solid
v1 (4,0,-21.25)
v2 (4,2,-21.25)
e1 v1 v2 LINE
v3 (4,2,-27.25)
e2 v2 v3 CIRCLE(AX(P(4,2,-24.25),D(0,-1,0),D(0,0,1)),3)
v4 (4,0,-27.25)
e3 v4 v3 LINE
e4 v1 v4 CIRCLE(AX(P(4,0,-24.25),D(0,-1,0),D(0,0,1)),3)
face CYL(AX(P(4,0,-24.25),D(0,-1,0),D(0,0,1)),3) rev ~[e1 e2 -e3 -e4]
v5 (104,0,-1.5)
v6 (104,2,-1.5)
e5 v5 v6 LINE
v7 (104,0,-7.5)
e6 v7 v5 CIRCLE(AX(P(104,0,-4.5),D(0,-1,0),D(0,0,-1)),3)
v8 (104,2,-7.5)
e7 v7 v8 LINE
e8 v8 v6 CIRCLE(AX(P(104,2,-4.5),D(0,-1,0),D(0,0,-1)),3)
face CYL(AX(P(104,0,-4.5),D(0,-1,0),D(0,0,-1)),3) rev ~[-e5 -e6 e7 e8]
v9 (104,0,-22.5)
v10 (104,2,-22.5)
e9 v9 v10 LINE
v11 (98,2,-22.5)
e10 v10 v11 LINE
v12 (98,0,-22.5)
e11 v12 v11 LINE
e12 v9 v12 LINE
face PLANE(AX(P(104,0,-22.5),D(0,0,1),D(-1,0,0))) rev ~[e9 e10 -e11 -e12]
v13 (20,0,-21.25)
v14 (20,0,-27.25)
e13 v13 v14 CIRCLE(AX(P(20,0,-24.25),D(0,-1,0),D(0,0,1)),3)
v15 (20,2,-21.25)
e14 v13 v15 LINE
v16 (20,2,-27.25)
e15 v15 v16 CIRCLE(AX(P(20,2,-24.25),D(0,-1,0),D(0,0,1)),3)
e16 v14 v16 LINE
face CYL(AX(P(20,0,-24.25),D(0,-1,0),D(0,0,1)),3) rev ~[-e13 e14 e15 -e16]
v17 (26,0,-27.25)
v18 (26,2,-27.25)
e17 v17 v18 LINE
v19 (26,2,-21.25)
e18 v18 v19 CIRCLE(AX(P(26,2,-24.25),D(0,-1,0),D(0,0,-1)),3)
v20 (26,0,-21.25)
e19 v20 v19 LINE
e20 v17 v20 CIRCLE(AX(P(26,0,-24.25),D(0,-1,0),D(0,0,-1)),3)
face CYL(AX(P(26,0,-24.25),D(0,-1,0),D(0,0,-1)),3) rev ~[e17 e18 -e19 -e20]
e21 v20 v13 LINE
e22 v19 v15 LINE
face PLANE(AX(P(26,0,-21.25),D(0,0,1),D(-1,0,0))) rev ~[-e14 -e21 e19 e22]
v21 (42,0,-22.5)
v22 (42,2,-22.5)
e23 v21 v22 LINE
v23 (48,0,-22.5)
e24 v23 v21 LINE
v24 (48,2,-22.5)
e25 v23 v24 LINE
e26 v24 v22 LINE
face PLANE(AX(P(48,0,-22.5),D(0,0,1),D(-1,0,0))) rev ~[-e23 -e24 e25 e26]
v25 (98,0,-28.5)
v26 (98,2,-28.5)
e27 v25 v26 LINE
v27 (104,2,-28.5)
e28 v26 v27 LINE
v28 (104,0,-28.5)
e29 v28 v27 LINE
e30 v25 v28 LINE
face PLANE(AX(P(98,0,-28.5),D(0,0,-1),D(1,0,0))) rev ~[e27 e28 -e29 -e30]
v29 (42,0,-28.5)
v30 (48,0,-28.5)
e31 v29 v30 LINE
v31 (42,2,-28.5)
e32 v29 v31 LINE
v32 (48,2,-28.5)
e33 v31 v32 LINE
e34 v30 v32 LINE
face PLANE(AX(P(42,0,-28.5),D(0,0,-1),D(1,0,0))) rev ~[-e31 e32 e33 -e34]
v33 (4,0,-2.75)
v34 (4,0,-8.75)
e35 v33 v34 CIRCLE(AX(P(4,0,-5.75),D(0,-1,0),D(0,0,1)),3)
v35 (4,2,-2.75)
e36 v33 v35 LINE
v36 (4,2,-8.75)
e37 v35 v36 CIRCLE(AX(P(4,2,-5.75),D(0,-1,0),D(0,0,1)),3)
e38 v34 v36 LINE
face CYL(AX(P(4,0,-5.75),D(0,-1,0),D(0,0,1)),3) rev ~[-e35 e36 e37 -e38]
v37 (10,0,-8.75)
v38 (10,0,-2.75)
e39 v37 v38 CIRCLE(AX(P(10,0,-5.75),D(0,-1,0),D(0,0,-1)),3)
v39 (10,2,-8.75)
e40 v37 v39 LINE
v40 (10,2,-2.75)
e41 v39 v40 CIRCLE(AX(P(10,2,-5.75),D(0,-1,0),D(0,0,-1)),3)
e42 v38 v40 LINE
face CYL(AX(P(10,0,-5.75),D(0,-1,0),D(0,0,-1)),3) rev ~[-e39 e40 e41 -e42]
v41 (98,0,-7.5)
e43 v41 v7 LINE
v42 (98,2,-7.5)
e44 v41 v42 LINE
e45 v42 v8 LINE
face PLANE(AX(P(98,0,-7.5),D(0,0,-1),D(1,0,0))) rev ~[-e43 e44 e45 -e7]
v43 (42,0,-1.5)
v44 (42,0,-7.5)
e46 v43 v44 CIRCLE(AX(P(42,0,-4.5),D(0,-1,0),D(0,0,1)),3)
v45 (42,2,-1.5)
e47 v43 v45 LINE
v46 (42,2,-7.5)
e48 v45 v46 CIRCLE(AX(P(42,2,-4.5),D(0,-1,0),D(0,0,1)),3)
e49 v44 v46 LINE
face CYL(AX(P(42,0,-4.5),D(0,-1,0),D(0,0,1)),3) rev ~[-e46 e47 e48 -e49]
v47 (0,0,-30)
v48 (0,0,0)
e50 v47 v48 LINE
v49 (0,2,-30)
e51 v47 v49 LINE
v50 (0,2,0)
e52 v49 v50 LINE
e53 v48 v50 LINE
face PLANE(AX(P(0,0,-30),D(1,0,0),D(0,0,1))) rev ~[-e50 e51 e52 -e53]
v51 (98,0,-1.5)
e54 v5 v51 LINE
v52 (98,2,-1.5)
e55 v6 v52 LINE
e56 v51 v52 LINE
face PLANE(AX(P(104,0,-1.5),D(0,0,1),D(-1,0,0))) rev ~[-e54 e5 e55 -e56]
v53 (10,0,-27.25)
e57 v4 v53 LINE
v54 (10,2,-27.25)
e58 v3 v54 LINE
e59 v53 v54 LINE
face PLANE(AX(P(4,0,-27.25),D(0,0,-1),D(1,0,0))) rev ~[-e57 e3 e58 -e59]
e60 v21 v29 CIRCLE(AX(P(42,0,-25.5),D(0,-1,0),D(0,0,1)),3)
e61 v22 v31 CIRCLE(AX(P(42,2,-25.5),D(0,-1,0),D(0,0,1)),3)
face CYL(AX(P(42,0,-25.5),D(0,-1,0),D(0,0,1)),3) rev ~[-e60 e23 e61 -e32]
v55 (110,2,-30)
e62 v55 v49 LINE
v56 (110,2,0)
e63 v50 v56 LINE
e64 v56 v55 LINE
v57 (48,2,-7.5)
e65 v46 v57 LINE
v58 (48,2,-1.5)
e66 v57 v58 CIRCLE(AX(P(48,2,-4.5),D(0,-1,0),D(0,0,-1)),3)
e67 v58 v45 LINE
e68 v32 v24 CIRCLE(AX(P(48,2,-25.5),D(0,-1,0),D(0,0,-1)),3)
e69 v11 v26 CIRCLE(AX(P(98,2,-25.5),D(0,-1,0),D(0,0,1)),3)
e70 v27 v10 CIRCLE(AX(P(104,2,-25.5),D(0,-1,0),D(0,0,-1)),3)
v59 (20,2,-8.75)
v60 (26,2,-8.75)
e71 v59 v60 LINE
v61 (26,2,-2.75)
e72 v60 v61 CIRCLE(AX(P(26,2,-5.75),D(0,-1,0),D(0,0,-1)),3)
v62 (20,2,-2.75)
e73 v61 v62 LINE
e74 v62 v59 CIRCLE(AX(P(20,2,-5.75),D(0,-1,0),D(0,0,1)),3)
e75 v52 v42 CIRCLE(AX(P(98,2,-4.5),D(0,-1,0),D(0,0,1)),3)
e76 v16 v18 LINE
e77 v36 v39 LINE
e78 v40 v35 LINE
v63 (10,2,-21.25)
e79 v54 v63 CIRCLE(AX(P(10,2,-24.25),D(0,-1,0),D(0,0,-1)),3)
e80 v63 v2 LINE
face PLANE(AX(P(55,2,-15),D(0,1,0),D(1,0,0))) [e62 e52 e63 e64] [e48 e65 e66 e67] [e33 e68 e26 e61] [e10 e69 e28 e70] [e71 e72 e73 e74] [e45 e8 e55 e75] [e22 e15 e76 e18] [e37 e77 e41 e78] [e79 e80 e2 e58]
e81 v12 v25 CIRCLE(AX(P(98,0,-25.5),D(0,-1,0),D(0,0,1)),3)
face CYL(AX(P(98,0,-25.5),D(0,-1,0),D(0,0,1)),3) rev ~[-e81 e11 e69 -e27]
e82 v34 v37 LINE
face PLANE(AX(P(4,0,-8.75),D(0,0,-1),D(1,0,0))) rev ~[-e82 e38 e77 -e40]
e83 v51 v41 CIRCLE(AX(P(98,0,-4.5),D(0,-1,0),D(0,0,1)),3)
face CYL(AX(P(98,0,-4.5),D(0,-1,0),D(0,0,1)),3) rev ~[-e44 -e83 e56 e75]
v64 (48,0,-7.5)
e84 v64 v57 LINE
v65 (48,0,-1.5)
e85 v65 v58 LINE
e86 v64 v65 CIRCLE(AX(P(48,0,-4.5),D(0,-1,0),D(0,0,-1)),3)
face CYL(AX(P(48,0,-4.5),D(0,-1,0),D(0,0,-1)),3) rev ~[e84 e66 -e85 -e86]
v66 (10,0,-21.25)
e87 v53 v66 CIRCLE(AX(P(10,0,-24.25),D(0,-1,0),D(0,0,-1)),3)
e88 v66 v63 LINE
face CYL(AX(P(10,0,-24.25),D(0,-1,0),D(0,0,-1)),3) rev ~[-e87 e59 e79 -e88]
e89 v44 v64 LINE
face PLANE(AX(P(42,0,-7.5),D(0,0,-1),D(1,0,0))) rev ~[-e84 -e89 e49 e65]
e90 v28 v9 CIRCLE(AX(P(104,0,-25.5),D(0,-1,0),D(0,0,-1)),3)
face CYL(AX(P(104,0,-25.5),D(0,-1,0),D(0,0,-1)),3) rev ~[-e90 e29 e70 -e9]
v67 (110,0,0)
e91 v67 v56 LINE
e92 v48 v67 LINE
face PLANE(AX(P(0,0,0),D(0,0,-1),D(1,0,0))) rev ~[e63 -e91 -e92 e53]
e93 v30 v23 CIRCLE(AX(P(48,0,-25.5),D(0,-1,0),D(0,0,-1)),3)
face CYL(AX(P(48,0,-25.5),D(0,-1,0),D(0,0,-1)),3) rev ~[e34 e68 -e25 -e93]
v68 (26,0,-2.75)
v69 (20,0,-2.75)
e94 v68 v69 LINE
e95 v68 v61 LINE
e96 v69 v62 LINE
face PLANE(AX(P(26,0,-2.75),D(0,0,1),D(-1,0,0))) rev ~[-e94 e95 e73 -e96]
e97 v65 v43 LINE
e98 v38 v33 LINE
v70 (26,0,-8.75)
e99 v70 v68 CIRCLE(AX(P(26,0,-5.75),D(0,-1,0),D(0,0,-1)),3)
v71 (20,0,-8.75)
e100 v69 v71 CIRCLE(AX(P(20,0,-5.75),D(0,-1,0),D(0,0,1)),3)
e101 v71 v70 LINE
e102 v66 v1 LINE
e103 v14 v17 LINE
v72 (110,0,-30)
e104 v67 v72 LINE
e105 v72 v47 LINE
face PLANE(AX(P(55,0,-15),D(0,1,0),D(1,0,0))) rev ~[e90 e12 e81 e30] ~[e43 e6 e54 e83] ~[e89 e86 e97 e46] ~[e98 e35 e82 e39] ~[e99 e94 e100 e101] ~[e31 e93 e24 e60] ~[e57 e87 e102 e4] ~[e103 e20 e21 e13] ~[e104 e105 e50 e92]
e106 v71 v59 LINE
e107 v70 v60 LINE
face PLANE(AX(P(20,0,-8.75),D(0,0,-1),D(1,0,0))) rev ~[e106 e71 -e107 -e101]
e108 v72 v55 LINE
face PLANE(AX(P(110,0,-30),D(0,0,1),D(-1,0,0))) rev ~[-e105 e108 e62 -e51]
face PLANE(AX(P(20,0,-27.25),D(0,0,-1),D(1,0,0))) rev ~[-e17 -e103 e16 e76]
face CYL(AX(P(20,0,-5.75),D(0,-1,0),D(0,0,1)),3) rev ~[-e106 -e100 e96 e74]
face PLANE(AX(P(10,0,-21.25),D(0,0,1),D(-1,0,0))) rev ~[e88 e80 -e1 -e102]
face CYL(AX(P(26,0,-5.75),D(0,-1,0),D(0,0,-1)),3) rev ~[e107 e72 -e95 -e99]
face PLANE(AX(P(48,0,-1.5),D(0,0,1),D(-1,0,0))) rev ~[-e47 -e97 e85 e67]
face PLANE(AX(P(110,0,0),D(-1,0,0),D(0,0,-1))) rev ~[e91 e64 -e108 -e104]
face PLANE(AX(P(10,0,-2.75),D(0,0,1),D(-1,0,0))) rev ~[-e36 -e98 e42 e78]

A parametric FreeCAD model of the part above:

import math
import FreeCAD as App
import Part
import Sketcher

V = App.Vector

doc = App.newDocument("Part")
body = doc.addObject("PartDesign::Body", "Body")

sketch1 = body.newObject("Sketcher::SketchObject", "Sketch")
sketch1.AttachmentSupport = (doc.getObject("XZ_Plane"), [""])
sketch1.MapMode = "FlatFace"
sketch1.addGeometry([
    Part.LineSegment(V(0, 0, 0), V(110, 0, 0)),
    Part.LineSegment(V(110, 0, 0), V(110, -30, 0)),
    Part.LineSegment(V(110, -30, 0), V(0, -30, 0)),
    Part.LineSegment(V(0, -30, 0), V(0, 0, 0)),
    Part.LineSegment(V(10, -2.75, 0), V(4, -2.75, 0)),
    Part.ArcOfCircle(Part.Circle(V(4, -5.75, 0), V(0, 0, 1), 3), math.radians(90), math.radians(270)),
    Part.LineSegment(V(4, -8.75, 0), V(10, -8.75, 0)),
    Part.ArcOfCircle(Part.Circle(V(10, -5.75, 0), V(0, 0, 1), 3), math.radians(-90), math.radians(90)),
    Part.LineSegment(V(26, -2.75, 0), V(20, -2.75, 0)),
    Part.ArcOfCircle(Part.Circle(V(20, -5.75, 0), V(0, 0, 1), 3), math.radians(90), math.radians(270)),
    Part.LineSegment(V(20, -8.75, 0), V(26, -8.75, 0)),
    Part.ArcOfCircle(Part.Circle(V(26, -5.75, 0), V(0, 0, 1), 3), math.radians(-90), math.radians(90)),
    Part.LineSegment(V(48, -1.5, 0), V(42, -1.5, 0)),
    Part.ArcOfCircle(Part.Circle(V(42, -4.5, 0), V(0, 0, 1), 3), math.radians(90), math.radians(270)),
    Part.LineSegment(V(42, -7.5, 0), V(48, -7.5, 0)),
    Part.ArcOfCircle(Part.Circle(V(48, -4.5, 0), V(0, 0, 1), 3), math.radians(-90), math.radians(90)),
    Part.LineSegment(V(104, -1.5, 0), V(98, -1.5, 0)),
    Part.ArcOfCircle(Part.Circle(V(98, -4.5, 0), V(0, 0, 1), 3), math.radians(90), math.radians(270)),
    Part.LineSegment(V(98, -7.5, 0), V(104, -7.5, 0)),
    Part.ArcOfCircle(Part.Circle(V(104, -4.5, 0), V(0, 0, 1), 3), math.radians(-90), math.radians(90)),
    Part.ArcOfCircle(Part.Circle(V(10, -24.25, 0), V(0, 0, 1), 3), math.radians(-90), math.radians(90)),
    Part.LineSegment(V(10, -21.25, 0), V(4, -21.25, 0)),
    Part.ArcOfCircle(Part.Circle(V(4, -24.25, 0), V(0, 0, 1), 3), math.radians(90), math.radians(270)),
    Part.LineSegment(V(4, -27.25, 0), V(10, -27.25, 0)),
    Part.ArcOfCircle(Part.Circle(V(26, -24.25, 0), V(0, 0, 1), 3), math.radians(-90), math.radians(90)),
    Part.LineSegment(V(26, -21.25, 0), V(20, -21.25, 0)),
    Part.ArcOfCircle(Part.Circle(V(20, -24.25, 0), V(0, 0, 1), 3), math.radians(90), math.radians(270)),
    Part.LineSegment(V(20, -27.25, 0), V(26, -27.25, 0)),
    Part.ArcOfCircle(Part.Circle(V(48, -25.5, 0), V(0, 0, 1), 3), math.radians(-90), math.radians(90)),
    Part.LineSegment(V(48, -22.5, 0), V(42, -22.5, 0)),
    Part.ArcOfCircle(Part.Circle(V(42, -25.5, 0), V(0, 0, 1), 3), math.radians(90), math.radians(270)),
    Part.LineSegment(V(42, -28.5, 0), V(48, -28.5, 0)),
    Part.ArcOfCircle(Part.Circle(V(104, -25.5, 0), V(0, 0, 1), 3), math.radians(-90), math.radians(90)),
    Part.LineSegment(V(104, -22.5, 0), V(98, -22.5, 0)),
    Part.ArcOfCircle(Part.Circle(V(98, -25.5, 0), V(0, 0, 1), 3), math.radians(90), math.radians(270)),
    Part.LineSegment(V(98, -28.5, 0), V(104, -28.5, 0)),
], False)
sketch1.addConstraint([
    Sketcher.Constraint("Coincident", 0, 2, 1, 1),
    Sketcher.Constraint("Coincident", 1, 2, 2, 1),
    Sketcher.Constraint("Coincident", 2, 2, 3, 1),
    Sketcher.Constraint("Coincident", 3, 2, 0, 1),
    Sketcher.Constraint("Tangent", 4, 2, 5, 1),
    Sketcher.Constraint("Tangent", 5, 2, 6, 1),
    Sketcher.Constraint("Tangent", 6, 2, 7, 1),
    Sketcher.Constraint("Tangent", 7, 2, 4, 1),
    Sketcher.Constraint("Tangent", 8, 2, 9, 1),
    Sketcher.Constraint("Tangent", 9, 2, 10, 1),
    Sketcher.Constraint("Tangent", 10, 2, 11, 1),
    Sketcher.Constraint("Tangent", 11, 2, 8, 1),
    Sketcher.Constraint("Tangent", 12, 2, 13, 1),
    Sketcher.Constraint("Tangent", 13, 2, 14, 1),
    Sketcher.Constraint("Tangent", 14, 2, 15, 1),
    Sketcher.Constraint("Tangent", 15, 2, 12, 1),
    Sketcher.Constraint("Tangent", 16, 2, 17, 1),
    Sketcher.Constraint("Tangent", 17, 2, 18, 1),
    Sketcher.Constraint("Tangent", 18, 2, 19, 1),
    Sketcher.Constraint("Tangent", 19, 2, 16, 1),
    Sketcher.Constraint("Tangent", 20, 2, 21, 1),
    Sketcher.Constraint("Tangent", 21, 2, 22, 1),
    Sketcher.Constraint("Tangent", 22, 2, 23, 1),
    Sketcher.Constraint("Tangent", 23, 2, 20, 1),
    Sketcher.Constraint("Tangent", 24, 2, 25, 1),
    Sketcher.Constraint("Tangent", 25, 2, 26, 1),
    Sketcher.Constraint("Tangent", 26, 2, 27, 1),
    Sketcher.Constraint("Tangent", 27, 2, 24, 1),
    Sketcher.Constraint("Tangent", 28, 2, 29, 1),
    Sketcher.Constraint("Tangent", 29, 2, 30, 1),
    Sketcher.Constraint("Tangent", 30, 2, 31, 1),
    Sketcher.Constraint("Tangent", 31, 2, 28, 1),
    Sketcher.Constraint("Tangent", 32, 2, 33, 1),
    Sketcher.Constraint("Tangent", 33, 2, 34, 1),
    Sketcher.Constraint("Tangent", 34, 2, 35, 1),
    Sketcher.Constraint("Tangent", 35, 2, 32, 1),
    Sketcher.Constraint("Horizontal", 0),
    Sketcher.Constraint("Vertical", 1),
    Sketcher.Constraint("Horizontal", 2),
    Sketcher.Constraint("Vertical", 3),
    Sketcher.Constraint("Horizontal", 4),
    Sketcher.Constraint("Horizontal", 6),
    Sketcher.Constraint("Horizontal", 8),
    Sketcher.Constraint("Horizontal", 10),
    Sketcher.Constraint("Horizontal", 12),
    Sketcher.Constraint("Horizontal", 14),
    Sketcher.Constraint("Horizontal", 16),
    Sketcher.Constraint("Horizontal", 18),
    Sketcher.Constraint("Horizontal", 21),
    Sketcher.Constraint("Horizontal", 23),
    Sketcher.Constraint("Horizontal", 25),
    Sketcher.Constraint("Horizontal", 27),
    Sketcher.Constraint("Horizontal", 29),
    Sketcher.Constraint("Horizontal", 31),
    Sketcher.Constraint("Horizontal", 33),
    Sketcher.Constraint("Horizontal", 35),
    Sketcher.Constraint("Coincident", 3, 2, -1, 1),
    Sketcher.Constraint("Equal", 7, 9),
    Sketcher.Constraint("Equal", 11, 13),
    Sketcher.Constraint("Equal", 15, 17),
    Sketcher.Constraint("Equal", 19, 20),
    Sketcher.Constraint("Equal", 22, 24),
    Sketcher.Constraint("Equal", 26, 28),
    Sketcher.Constraint("Equal", 30, 32),
    Sketcher.Constraint("Horizontal", 7, 3, 9, 3),
    Sketcher.Constraint("Horizontal", 15, 3, 17, 3),
    Sketcher.Constraint("Horizontal", 22, 3, 24, 3),
    Sketcher.Constraint("Horizontal", 30, 3, 32, 3),
    Sketcher.Constraint("Vertical", 7, 3, 20, 3),
    Sketcher.Constraint("Vertical", 5, 3, 22, 3),
    Sketcher.Constraint("Vertical", 11, 3, 24, 3),
    Sketcher.Constraint("Vertical", 9, 3, 26, 3),
    Sketcher.Constraint("Vertical", 15, 3, 28, 3),
    Sketcher.Constraint("Vertical", 13, 3, 30, 3),
    Sketcher.Constraint("Vertical", 19, 3, 32, 3),
    Sketcher.Constraint("Vertical", 17, 3, 34, 3),
    Sketcher.Constraint("Equal", 6, 8),
    Sketcher.Constraint("Equal", 10, 12),
    Sketcher.Constraint("Equal", 14, 16),
    Sketcher.Constraint("Radius", 5, 3.0),
    Sketcher.Constraint("DistanceX", 0, 1, 0, 2, 110.0),
    Sketcher.Constraint("DistanceX", 4, 2, 4, 1, 6.0),
    Sketcher.Constraint("DistanceY", 1, 2, 1, 1, 30.0),
    Sketcher.Constraint("DistanceX", -1, 1, 5, 3, 4.0),
    Sketcher.Constraint("DistanceX", -1, 1, 9, 3, 20.0),
    Sketcher.Constraint("DistanceX", -1, 1, 13, 3, 42.0),
    Sketcher.Constraint("DistanceX", -1, 1, 17, 3, 98.0),
    Sketcher.Constraint("DistanceY", 28, 3, 15, 3, 21.0),
    Sketcher.Constraint("DistanceY", 13, 3, -1, 1, 4.5),
    Sketcher.Constraint("DistanceY", 20, 3, 7, 3, 18.5),
    Sketcher.Constraint("DistanceY", 5, 3, -1, 1, 5.75),
])
pad1 = body.newObject("PartDesign::Pad", "Pad")
pad1.Profile = sketch1
pad1.Length = 2
pad1.Reversed = True

doc.recompute()
